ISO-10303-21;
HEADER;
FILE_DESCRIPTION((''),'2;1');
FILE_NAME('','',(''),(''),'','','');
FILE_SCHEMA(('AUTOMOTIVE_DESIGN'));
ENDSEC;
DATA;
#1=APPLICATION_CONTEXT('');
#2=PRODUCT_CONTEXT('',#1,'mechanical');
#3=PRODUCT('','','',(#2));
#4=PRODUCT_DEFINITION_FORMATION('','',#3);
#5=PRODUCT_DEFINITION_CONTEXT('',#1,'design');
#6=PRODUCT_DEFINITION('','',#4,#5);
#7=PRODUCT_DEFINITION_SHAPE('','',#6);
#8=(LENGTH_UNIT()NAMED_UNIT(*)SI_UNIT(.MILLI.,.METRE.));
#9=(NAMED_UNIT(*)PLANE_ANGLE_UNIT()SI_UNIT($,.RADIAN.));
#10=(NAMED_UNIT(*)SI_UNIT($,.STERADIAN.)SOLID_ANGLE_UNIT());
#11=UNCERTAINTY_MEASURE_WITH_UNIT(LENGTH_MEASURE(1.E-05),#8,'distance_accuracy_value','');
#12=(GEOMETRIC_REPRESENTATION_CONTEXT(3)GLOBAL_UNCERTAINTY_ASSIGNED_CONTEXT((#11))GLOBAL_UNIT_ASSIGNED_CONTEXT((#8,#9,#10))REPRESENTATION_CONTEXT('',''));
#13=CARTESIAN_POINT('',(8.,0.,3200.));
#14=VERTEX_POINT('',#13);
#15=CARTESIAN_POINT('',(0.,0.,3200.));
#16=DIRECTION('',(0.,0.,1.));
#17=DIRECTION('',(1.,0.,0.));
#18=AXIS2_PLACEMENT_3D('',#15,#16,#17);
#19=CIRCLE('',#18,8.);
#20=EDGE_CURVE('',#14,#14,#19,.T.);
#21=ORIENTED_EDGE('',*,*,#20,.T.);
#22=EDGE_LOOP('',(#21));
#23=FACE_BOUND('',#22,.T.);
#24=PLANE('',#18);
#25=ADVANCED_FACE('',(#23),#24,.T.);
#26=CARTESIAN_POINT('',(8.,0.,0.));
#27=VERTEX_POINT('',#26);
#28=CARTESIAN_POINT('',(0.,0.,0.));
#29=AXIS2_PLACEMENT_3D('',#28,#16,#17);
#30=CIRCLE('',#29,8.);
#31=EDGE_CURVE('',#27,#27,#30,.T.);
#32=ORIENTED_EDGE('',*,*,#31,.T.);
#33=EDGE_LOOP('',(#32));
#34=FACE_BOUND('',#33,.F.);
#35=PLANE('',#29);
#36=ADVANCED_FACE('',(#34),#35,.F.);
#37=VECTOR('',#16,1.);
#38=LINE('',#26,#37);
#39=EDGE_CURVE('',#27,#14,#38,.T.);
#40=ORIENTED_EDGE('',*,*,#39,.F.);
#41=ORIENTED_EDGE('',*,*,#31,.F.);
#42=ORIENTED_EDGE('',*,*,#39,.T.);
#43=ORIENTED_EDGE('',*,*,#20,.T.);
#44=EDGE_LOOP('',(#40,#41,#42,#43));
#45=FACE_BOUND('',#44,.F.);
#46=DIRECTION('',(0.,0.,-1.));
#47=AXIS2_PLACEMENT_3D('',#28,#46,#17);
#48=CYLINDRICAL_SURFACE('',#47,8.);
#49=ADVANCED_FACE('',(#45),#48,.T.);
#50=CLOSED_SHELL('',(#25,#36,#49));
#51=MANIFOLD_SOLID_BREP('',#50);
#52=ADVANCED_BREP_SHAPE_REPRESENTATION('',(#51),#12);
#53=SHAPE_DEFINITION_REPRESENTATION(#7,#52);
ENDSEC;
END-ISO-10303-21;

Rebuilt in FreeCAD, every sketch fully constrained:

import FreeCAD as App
import Part
import Sketcher

doc = App.newDocument("Part")
params = doc.addObject("Spreadsheet::Sheet", "Params")
for row, (alias, value) in enumerate([
    ("sketch1_diameter", "16 mm"),
    ("pad1_length", "3200 mm"),
], start=1):
    params.set(f"A{row}", alias)
    params.set(f"B{row}", "=" + value)
    params.setAlias(f"B{row}", alias)

body = doc.addObject("PartDesign::Body", "Body")

sketch1 = body.newObject("Sketcher::SketchObject", "Sketch")
sketch1.AttachmentSupport = (doc.getObject("XY_Plane"), [""])
sketch1.MapMode = "FlatFace"
sketch1.addGeometry(Part.Circle(App.Vector(0, 0, 0), App.Vector(0, 0, 1), 8), False)
sketch1.addConstraint([
    Sketcher.Constraint("Coincident", 0, 3, -1, 1),
    Sketcher.Constraint("Diameter", 0, 16.0),
])
sketch1.setExpression("Constraints[1]", "Params.sketch1_diameter")
pad1 = body.newObject("PartDesign::Pad", "Pad")
pad1.Profile = sketch1
pad1.setExpression("Length", "Params.pad1_length")

doc.recompute()
